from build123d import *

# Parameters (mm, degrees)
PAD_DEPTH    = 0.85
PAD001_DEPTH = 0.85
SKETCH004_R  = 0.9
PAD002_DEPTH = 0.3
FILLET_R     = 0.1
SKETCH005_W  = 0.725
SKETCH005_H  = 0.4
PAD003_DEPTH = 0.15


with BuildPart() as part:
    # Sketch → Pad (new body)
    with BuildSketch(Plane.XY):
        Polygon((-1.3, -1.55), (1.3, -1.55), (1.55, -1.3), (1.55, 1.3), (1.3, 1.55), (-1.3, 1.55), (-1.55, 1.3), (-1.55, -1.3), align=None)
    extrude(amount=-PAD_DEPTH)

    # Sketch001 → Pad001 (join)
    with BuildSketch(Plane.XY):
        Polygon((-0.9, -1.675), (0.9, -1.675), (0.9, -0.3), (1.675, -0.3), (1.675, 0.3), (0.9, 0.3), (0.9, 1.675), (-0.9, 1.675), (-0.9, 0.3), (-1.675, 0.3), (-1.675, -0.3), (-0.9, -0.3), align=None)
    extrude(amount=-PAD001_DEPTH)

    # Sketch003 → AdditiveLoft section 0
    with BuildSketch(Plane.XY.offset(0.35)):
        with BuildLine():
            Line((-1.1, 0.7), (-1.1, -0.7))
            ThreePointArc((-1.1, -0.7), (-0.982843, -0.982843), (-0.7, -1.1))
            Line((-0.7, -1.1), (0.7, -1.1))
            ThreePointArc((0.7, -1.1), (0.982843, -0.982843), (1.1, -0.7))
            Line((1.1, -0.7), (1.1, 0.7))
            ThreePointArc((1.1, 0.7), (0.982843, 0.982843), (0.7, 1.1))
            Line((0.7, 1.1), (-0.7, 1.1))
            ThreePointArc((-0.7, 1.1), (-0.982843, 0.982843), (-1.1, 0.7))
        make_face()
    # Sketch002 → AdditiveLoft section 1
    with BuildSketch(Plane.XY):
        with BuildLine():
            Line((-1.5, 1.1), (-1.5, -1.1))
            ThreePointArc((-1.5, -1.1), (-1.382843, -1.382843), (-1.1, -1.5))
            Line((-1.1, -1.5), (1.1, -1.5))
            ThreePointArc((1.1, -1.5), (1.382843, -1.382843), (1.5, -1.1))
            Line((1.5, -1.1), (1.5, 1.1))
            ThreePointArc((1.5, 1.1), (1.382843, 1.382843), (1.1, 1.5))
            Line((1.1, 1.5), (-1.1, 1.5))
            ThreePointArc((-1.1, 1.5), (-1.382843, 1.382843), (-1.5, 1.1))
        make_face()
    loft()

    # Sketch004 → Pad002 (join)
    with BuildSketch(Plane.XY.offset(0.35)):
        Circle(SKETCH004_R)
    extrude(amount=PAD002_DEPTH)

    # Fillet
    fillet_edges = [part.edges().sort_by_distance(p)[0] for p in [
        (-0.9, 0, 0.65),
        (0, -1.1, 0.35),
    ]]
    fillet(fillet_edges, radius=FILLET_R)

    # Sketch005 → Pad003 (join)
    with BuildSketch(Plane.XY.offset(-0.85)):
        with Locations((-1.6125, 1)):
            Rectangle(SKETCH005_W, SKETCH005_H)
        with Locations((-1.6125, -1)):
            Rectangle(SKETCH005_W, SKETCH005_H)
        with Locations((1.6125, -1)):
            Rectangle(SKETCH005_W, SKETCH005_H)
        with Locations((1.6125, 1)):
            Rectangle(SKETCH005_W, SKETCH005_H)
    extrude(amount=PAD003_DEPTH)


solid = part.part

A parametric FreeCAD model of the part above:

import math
import FreeCAD as App
import Part
import Sketcher
Q = App.Units.Quantity


def edges_at(feature, points):
    """Names of the edges that pass closest to the given points."""
    edges = feature.Shape.Edges
    near = lambda p: min(range(len(edges)), key=lambda i: edges[i].distToShape(Part.Vertex(*p))[0])
    return sorted({f"Edge{near(p) + 1}" for p in points})

doc = App.newDocument("Part")
body = doc.addObject("PartDesign::Body", "Body")

# Sketch on XY plane
sketch1 = body.newObject("Sketcher::SketchObject", "Sketch")
sketch1.AttachmentSupport = (doc.getObject("XY_Plane"), [""])
sketch1.MapMode = "FlatFace"
sketch1.addGeometry([
    Part.LineSegment(App.Vector(-1.3, -1.55, 0), App.Vector(1.3, -1.55, 0)),  # 0
    Part.LineSegment(App.Vector(1.3, -1.55, 0), App.Vector(1.55, -1.3, 0)),  # 1
    Part.LineSegment(App.Vector(1.55, -1.3, 0), App.Vector(1.55, 1.3, 0)),  # 2
    Part.LineSegment(App.Vector(1.55, 1.3, 0), App.Vector(1.3, 1.55, 0)),  # 3
    Part.LineSegment(App.Vector(1.3, 1.55, 0), App.Vector(-1.3, 1.55, 0)),  # 4
    Part.LineSegment(App.Vector(-1.3, 1.55, 0), App.Vector(-1.55, 1.3, 0)),  # 5
    Part.LineSegment(App.Vector(-1.55, 1.3, 0), App.Vector(-1.55, -1.3, 0)),  # 6
    Part.LineSegment(App.Vector(-1.55, -1.3, 0), App.Vector(-1.3, -1.55, 0)),  # 7
], False)
sketch1.addConstraint([
    Sketcher.Constraint("Coincident", 0, 2, 1, 1),
    Sketcher.Constraint("Coincident", 1, 2, 2, 1),
    Sketcher.Constraint("Coincident", 2, 2, 3, 1),
    Sketcher.Constraint("Coincident", 3, 2, 4, 1),
    Sketcher.Constraint("Coincident", 4, 2, 5, 1),
    Sketcher.Constraint("Coincident", 5, 2, 6, 1),
    Sketcher.Constraint("Coincident", 6, 2, 7, 1),
    Sketcher.Constraint("Coincident", 7, 2, 0, 1),
    Sketcher.Constraint("Horizontal", 0),
    Sketcher.Constraint("Vertical", 2),
    Sketcher.Constraint("Horizontal", 4),
    Sketcher.Constraint("Vertical", 6),
    Sketcher.Constraint("Symmetric", 0, 2, 4, 2, -1, 1),
    Sketcher.Constraint("Symmetric", 1, 2, 5, 2, -1, 1),
    Sketcher.Constraint("Perpendicular", 1, 3),
    Sketcher.Constraint("Perpendicular", 5, 7),
    Sketcher.Constraint("Horizontal", 2, 2, 5, 2),
    Sketcher.Constraint("Horizontal", 1, 2, 6, 2),
    Sketcher.Constraint("Vertical", 0, 2, 3, 2),
    Sketcher.Constraint("Equal", 4, 2),
    Sketcher.Constraint("DistanceX", 0, 1, 0, 2, Q("2.6 mm")),
    Sketcher.Constraint("DistanceY", 0, 2, 3, 2, Q("3.1 mm")),
])
pad1 = body.newObject("PartDesign::Pad", "Pad")
pad1.Profile = sketch1
pad1.Length = 0.85
pad1.Reversed = True

# Sketch on XY plane
sketch2 = body.newObject("Sketcher::SketchObject", "Sketch001")
sketch2.AttachmentSupport = (doc.getObject("XY_Plane"), [""])
sketch2.MapMode = "FlatFace"
sketch2.addGeometry([
    Part.LineSegment(App.Vector(-0.9, -1.675, 0), App.Vector(0.9, -1.675, 0)),  # 0
    Part.LineSegment(App.Vector(0.9, -1.675, 0), App.Vector(0.9, -0.3, 0)),  # 1
    Part.LineSegment(App.Vector(0.9, -0.3, 0), App.Vector(1.675, -0.3, 0)),  # 2
    Part.LineSegment(App.Vector(1.675, -0.3, 0), App.Vector(1.675, 0.3, 0)),  # 3
    Part.LineSegment(App.Vector(1.675, 0.3, 0), App.Vector(0.9, 0.3, 0)),  # 4
    Part.LineSegment(App.Vector(0.9, 0.3, 0), App.Vector(0.9, 1.675, 0)),  # 5
    Part.LineSegment(App.Vector(0.9, 1.675, 0), App.Vector(-0.9, 1.675, 0)),  # 6
    Part.LineSegment(App.Vector(-0.9, 1.675, 0), App.Vector(-0.9, 0.3, 0)),  # 7
    Part.LineSegment(App.Vector(-0.9, 0.3, 0), App.Vector(-1.675, 0.3, 0)),  # 8
    Part.LineSegment(App.Vector(-1.675, 0.3, 0), App.Vector(-1.675, -0.3, 0)),  # 9
    Part.LineSegment(App.Vector(-1.675, -0.3, 0), App.Vector(-0.9, -0.3, 0)),  # 10
    Part.LineSegment(App.Vector(-0.9, -0.3, 0), App.Vector(-0.9, -1.675, 0)),  # 11
], False)
sketch2.addConstraint([
    Sketcher.Constraint("Coincident", 0, 2, 1, 1),
    Sketcher.Constraint("Coincident", 1, 2, 2, 1),
    Sketcher.Constraint("Coincident", 2, 2, 3, 1),
    Sketcher.Constraint("Coincident", 3, 2, 4, 1),
    Sketcher.Constraint("Coincident", 4, 2, 5, 1),
    Sketcher.Constraint("Coincident", 5, 2, 6, 1),
    Sketcher.Constraint("Coincident", 6, 2, 7, 1),
    Sketcher.Constraint("Coincident", 7, 2, 8, 1),
    Sketcher.Constraint("Coincident", 8, 2, 9, 1),
    Sketcher.Constraint("Coincident", 9, 2, 10, 1),
    Sketcher.Constraint("Coincident", 10, 2, 11, 1),
    Sketcher.Constraint("Coincident", 11, 2, 0, 1),
    Sketcher.Constraint("Horizontal", 0),
    Sketcher.Constraint("Vertical", 1),
    Sketcher.Constraint("Horizontal", 2),
    Sketcher.Constraint("Vertical", 3),
    Sketcher.Constraint("Horizontal", 4),
    Sketcher.Constraint("Vertical", 5),
    Sketcher.Constraint("Horizontal", 6),
    Sketcher.Constraint("Vertical", 7),
    Sketcher.Constraint("Horizontal", 8),
    Sketcher.Constraint("Vertical", 9),
    Sketcher.Constraint("Horizontal", 10),
    Sketcher.Constraint("Vertical", 11),
    Sketcher.Constraint("Symmetric", 0, 2, 6, 2, -1, 1),
    Sketcher.Constraint("Symmetric", 2, 2, 8, 2, -1, 1),
    Sketcher.Constraint("Symmetric", 4, 2, 10, 2, -1, 1),
    Sketcher.Constraint("Symmetric", 4, 2, 7, 2, -2),
    Sketcher.Constraint("DistanceX", 0, 1, 0, 2, Q("1.8 mm")),
    Sketcher.Constraint("DistanceY", 3, 1, 3, 2, Q("0.6 mm")),
    Sketcher.Constraint("DistanceX", 2, 1, 2, 2, Q("0.775 mm")),
    Sketcher.Constraint("DistanceY", 1, 1, 1, 2, Q("1.375 mm")),
])
pad2 = body.newObject("PartDesign::Pad", "Pad001")
pad2.Profile = sketch2
pad2.Length = 0.85
pad2.Reversed = True

# Sketch on XY plane
sketch3 = body.newObject("Sketcher::SketchObject", "Sketch002")
sketch3.AttachmentSupport = (doc.getObject("XY_Plane"), [""])
sketch3.MapMode = "FlatFace"
sketch3.AttachmentOffset = App.Placement(App.Vector(0, 0, 0.35), App.Rotation())
sketch3.addGeometry([
    Part.LineSegment(App.Vector(-1.1, 0.7, 0), App.Vector(-1.1, -0.7, 0)),  # 0
    Part.ArcOfCircle(Part.Circle(App.Vector(-0.700001, -0.700001, 0), App.Vector(0, 0, 1), 0.399999), math.radians(179.999859), math.radians(270.000141)),  # 1
    Part.LineSegment(App.Vector(-0.7, -1.1, 0), App.Vector(0.7, -1.1, 0)),  # 2
    Part.ArcOfCircle(Part.Circle(App.Vector(0.700001, -0.700001, 0), App.Vector(0, 0, 1), 0.399999), math.radians(-90.000141), math.radians(0.000141)),  # 3
    Part.LineSegment(App.Vector(1.1, -0.7, 0), App.Vector(1.1, 0.7, 0)),  # 4
    Part.ArcOfCircle(Part.Circle(App.Vector(0.700001, 0.700001, 0), App.Vector(0, 0, 1), 0.399999), math.radians(-0.000141), math.radians(90.000141)),  # 5
    Part.LineSegment(App.Vector(0.7, 1.1, 0), App.Vector(-0.7, 1.1, 0)),  # 6
    Part.ArcOfCircle(Part.Circle(App.Vector(-0.700001, 0.700001, 0), App.Vector(0, 0, 1), 0.399999), math.radians(89.999859), math.radians(180.000141)),  # 7
], False)
sketch3.addConstraint([
    Sketcher.Constraint("Coincident", 0, 2, 1, 1),
    Sketcher.Constraint("Coincident", 1, 2, 2, 1),
    Sketcher.Constraint("Coincident", 2, 2, 3, 1),
    Sketcher.Constraint("Coincident", 3, 2, 4, 1),
    Sketcher.Constraint("Coincident", 4, 2, 5, 1),
    Sketcher.Constraint("Coincident", 5, 2, 6, 1),
    Sketcher.Constraint("Coincident", 6, 2, 7, 1),
    Sketcher.Constraint("Coincident", 7, 2, 0, 1),
    Sketcher.Constraint("Vertical", 0),
    Sketcher.Constraint("Horizontal", 2),
    Sketcher.Constraint("Vertical", 4),
    Sketcher.Constraint("Horizontal", 6),
    Sketcher.Constraint("Equal", 1, 3),
    Sketcher.Constraint("Equal", 3, 5),
    Sketcher.Constraint("Equal", 5, 7),
    Sketcher.Constraint("Symmetric", 1, 3, 5, 3, -1, 1),
    Sketcher.Constraint("Horizontal", 3, 3, 0, 2),
    Sketcher.Constraint("Horizontal", 0, 2, 3, 2),
    Sketcher.Constraint("Horizontal", 7, 3, 4, 2),
    Sketcher.Constraint("Horizontal", 4, 2, 7, 2),
    Sketcher.Constraint("Vertical", 7, 3, 1, 2),
    Sketcher.Constraint("Vertical", 5, 3, 2, 2),
    Sketcher.Constraint("Vertical", 2, 2, 5, 2),
    Sketcher.Constraint("Vertical", 1, 2, 6, 2),
    Sketcher.Constraint("Equal", 6, 0),
    Sketcher.Constraint("Radius", 1, Q("0.399999 mm")),
    Sketcher.Constraint("DistanceX", 2, 1, 2, 2, Q("1.4 mm")),
])

# Sketch on XY plane
sketch4 = body.newObject("Sketcher::SketchObject", "Sketch003")
sketch4.AttachmentSupport = (doc.getObject("XY_Plane"), [""])
sketch4.MapMode = "FlatFace"
sketch4.addGeometry([
    Part.LineSegment(App.Vector(-1.5, 1.1, 0), App.Vector(-1.5, -1.1, 0)),  # 0
    Part.ArcOfCircle(Part.Circle(App.Vector(-1.100001, -1.100001, 0), App.Vector(0, 0, 1), 0.399999), math.radians(179.999859), math.radians(270.000141)),  # 1
    Part.LineSegment(App.Vector(-1.1, -1.5, 0), App.Vector(1.1, -1.5, 0)),  # 2
    Part.ArcOfCircle(Part.Circle(App.Vector(1.100001, -1.100001, 0), App.Vector(0, 0, 1), 0.399999), math.radians(-90.000141), math.radians(0.000141)),  # 3
    Part.LineSegment(App.Vector(1.5, -1.1, 0), App.Vector(1.5, 1.1, 0)),  # 4
    Part.ArcOfCircle(Part.Circle(App.Vector(1.100001, 1.100001, 0), App.Vector(0, 0, 1), 0.399999), math.radians(-0.000141), math.radians(90.000141)),  # 5
    Part.LineSegment(App.Vector(1.1, 1.5, 0), App.Vector(-1.1, 1.5, 0)),  # 6
    Part.ArcOfCircle(Part.Circle(App.Vector(-1.100001, 1.100001, 0), App.Vector(0, 0, 1), 0.399999), math.radians(89.999859), math.radians(180.000141)),  # 7
], False)
sketch4.addConstraint([
    Sketcher.Constraint("Coincident", 0, 2, 1, 1),
    Sketcher.Constraint("Coincident", 1, 2, 2, 1),
    Sketcher.Constraint("Coincident", 2, 2, 3, 1),
    Sketcher.Constraint("Coincident", 3, 2, 4, 1),
    Sketcher.Constraint("Coincident", 4, 2, 5, 1),
    Sketcher.Constraint("Coincident", 5, 2, 6, 1),
    Sketcher.Constraint("Coincident", 6, 2, 7, 1),
    Sketcher.Constraint("Coincident", 7, 2, 0, 1),
    Sketcher.Constraint("Vertical", 0),
    Sketcher.Constraint("Horizontal", 2),
    Sketcher.Constraint("Vertical", 4),
    Sketcher.Constraint("Horizontal", 6),
    Sketcher.Constraint("Equal", 1, 3),
    Sketcher.Constraint("Equal", 3, 5),
    Sketcher.Constraint("Equal", 5, 7),
    Sketcher.Constraint("Symmetric", 1, 3, 5, 3, -1, 1),
    Sketcher.Constraint("Horizontal", 3, 3, 0, 2),
    Sketcher.Constraint("Horizontal", 0, 2, 3, 2),
    Sketcher.Constraint("Horizontal", 7, 3, 4, 2),
    Sketcher.Constraint("Horizontal", 4, 2, 7, 2),
    Sketcher.Constraint("Vertical", 7, 3, 1, 2),
    Sketcher.Constraint("Vertical", 5, 3, 2, 2),
    Sketcher.Constraint("Vertical", 2, 2, 5, 2),
    Sketcher.Constraint("Vertical", 1, 2, 6, 2),
    Sketcher.Constraint("Equal", 6, 0),
    Sketcher.Constraint("Radius", 1, Q("0.399999 mm")),
    Sketcher.Constraint("DistanceX", 2, 1, 2, 2, Q("2.2 mm")),
])

additiveloft = body.newObject("PartDesign::AdditiveLoft", "AdditiveLoft")
additiveloft.Profile = sketch3
additiveloft.Sections = [sketch4]

# Sketch on XY plane
sketch5 = body.newObject("Sketcher::SketchObject", "Sketch004")
sketch5.AttachmentSupport = (doc.getObject("XY_Plane"), [""])
sketch5.MapMode = "FlatFace"
sketch5.AttachmentOffset = App.Placement(App.Vector(0, 0, 0.35), App.Rotation())
sketch5.addGeometry(Part.Circle(App.Vector(0, 0, 0), App.Vector(0, 0, 1), 0.9), False)
sketch5.addConstraint([
    Sketcher.Constraint("Coincident", 0, 3, -1, 1),
    Sketcher.Constraint("Diameter", 0, Q("1.8 mm")),
])
pad3 = body.newObject("PartDesign::Pad", "Pad002")
pad3.Profile = sketch5
pad3.Length = 0.3
doc.recompute()

fillet = body.newObject("PartDesign::Fillet", "Fillet")
fillet.Base = (pad3, edges_at(pad3, [(-0.9, 0, 0.65), (0, -1.1, 0.35)]))
fillet.Radius = 0.1

# Sketch on XY plane
sketch6 = body.newObject("Sketcher::SketchObject", "Sketch005")
sketch6.AttachmentSupport = (doc.getObject("XY_Plane"), [""])
sketch6.MapMode = "FlatFace"
sketch6.AttachmentOffset = App.Placement(App.Vector(0, 0, -0.85), App.Rotation())
sketch6.addGeometry([
    Part.LineSegment(App.Vector(-1.975, 1.2, 0), App.Vector(-1.975, 0.8, 0)),  # 0
    Part.LineSegment(App.Vector(-1.975, 0.8, 0), App.Vector(-1.25, 0.8, 0)),  # 1
    Part.LineSegment(App.Vector(-1.25, 0.8, 0), App.Vector(-1.25, 1.2, 0)),  # 2
    Part.LineSegment(App.Vector(-1.25, 1.2, 0), App.Vector(-1.975, 1.2, 0)),  # 3
    Part.LineSegment(App.Vector(-1.975, -0.8, 0), App.Vector(-1.975, -1.2, 0)),  # 4
    Part.LineSegment(App.Vector(-1.975, -1.2, 0), App.Vector(-1.25, -1.2, 0)),  # 5
    Part.LineSegment(App.Vector(-1.25, -1.2, 0), App.Vector(-1.25, -0.8, 0)),  # 6
    Part.LineSegment(App.Vector(-1.25, -0.8, 0), App.Vector(-1.975, -0.8, 0)),  # 7
    Part.LineSegment(App.Vector(1.25, -0.8, 0), App.Vector(1.25, -1.2, 0)),  # 8
    Part.LineSegment(App.Vector(1.25, -1.2, 0), App.Vector(1.975, -1.2, 0)),  # 9
    Part.LineSegment(App.Vector(1.975, -1.2, 0), App.Vector(1.975, -0.8, 0)),  # 10
    Part.LineSegment(App.Vector(1.975, -0.8, 0), App.Vector(1.25, -0.8, 0)),  # 11
    Part.LineSegment(App.Vector(1.25, 1.2, 0), App.Vector(1.25, 0.8, 0)),  # 12
    Part.LineSegment(App.Vector(1.25, 0.8, 0), App.Vector(1.975, 0.8, 0)),  # 13
    Part.LineSegment(App.Vector(1.975, 0.8, 0), App.Vector(1.975, 1.2, 0)),  # 14
    Part.LineSegment(App.Vector(1.975, 1.2, 0), App.Vector(1.25, 1.2, 0)),  # 15
], False)
sketch6.addConstraint([
    Sketcher.Constraint("Coincident", 0, 2, 1, 1),
    Sketcher.Constraint("Coincident", 1, 2, 2, 1),
    Sketcher.Constraint("Coincident", 2, 2, 3, 1),
    Sketcher.Constraint("Coincident", 3, 2, 0, 1),
    Sketcher.Constraint("Coincident", 4, 2, 5, 1),
    Sketcher.Constraint("Coincident", 5, 2, 6, 1),
    Sketcher.Constraint("Coincident", 6, 2, 7, 1),
    Sketcher.Constraint("Coincident", 7, 2, 4, 1),
    Sketcher.Constraint("Coincident", 8, 2, 9, 1),
    Sketcher.Constraint("Coincident", 9, 2, 10, 1),
    Sketcher.Constraint("Coincident", 10, 2, 11, 1),
    Sketcher.Constraint("Coincident", 11, 2, 8, 1),
    Sketcher.Constraint("Coincident", 12, 2, 13, 1),
    Sketcher.Constraint("Coincident", 13, 2, 14, 1),
    Sketcher.Constraint("Coincident", 14, 2, 15, 1),
    Sketcher.Constraint("Coincident", 15, 2, 12, 1),
    Sketcher.Constraint("Vertical", 0),
    Sketcher.Constraint("Horizontal", 1),
    Sketcher.Constraint("Vertical", 2),
    Sketcher.Constraint("Horizontal", 3),
    Sketcher.Constraint("Vertical", 4),
    Sketcher.Constraint("Horizontal", 5),
    Sketcher.Constraint("Vertical", 6),
    Sketcher.Constraint("Horizontal", 7),
    Sketcher.Constraint("Vertical", 8),
    Sketcher.Constraint("Horizontal", 9),
    Sketcher.Constraint("Vertical", 10),
    Sketcher.Constraint("Horizontal", 11),
    Sketcher.Constraint("Vertical", 12),
    Sketcher.Constraint("Horizontal", 13),
    Sketcher.Constraint("Vertical", 14),
    Sketcher.Constraint("Horizontal", 15),
    Sketcher.Constraint("Symmetric", 2, 2, 8, 2, -1, 1),
    Sketcher.Constraint("Symmetric", 0, 2, 10, 2, -1, 1),
    Sketcher.Constraint("Symmetric", 6, 2, 12, 2, -1, 1),
    Sketcher.Constraint("Symmetric", 4, 2, 14, 2, -1, 1),
    Sketcher.Constraint("Symmetric", 5, 2, 8, 2, -2),
    Sketcher.Constraint("Symmetric", 7, 2, 10, 2, -2),
    Sketcher.Constraint("DistanceY", 0, 2, 0, 1, Q("0.4 mm")),
    Sketcher.Constraint("DistanceY", 4, 2, 0, 2, Q("2 mm")),
    Sketcher.Constraint("DistanceX", 5, 2, 8, 2, Q("2.5 mm")),
    Sketcher.Constraint("DistanceX", 1, 1, 1, 2, Q("0.725 mm")),
])
pad4 = body.newObject("PartDesign::Pad", "Pad003")
pad4.Profile = sketch6
pad4.Length = 0.15

doc.recompute()
